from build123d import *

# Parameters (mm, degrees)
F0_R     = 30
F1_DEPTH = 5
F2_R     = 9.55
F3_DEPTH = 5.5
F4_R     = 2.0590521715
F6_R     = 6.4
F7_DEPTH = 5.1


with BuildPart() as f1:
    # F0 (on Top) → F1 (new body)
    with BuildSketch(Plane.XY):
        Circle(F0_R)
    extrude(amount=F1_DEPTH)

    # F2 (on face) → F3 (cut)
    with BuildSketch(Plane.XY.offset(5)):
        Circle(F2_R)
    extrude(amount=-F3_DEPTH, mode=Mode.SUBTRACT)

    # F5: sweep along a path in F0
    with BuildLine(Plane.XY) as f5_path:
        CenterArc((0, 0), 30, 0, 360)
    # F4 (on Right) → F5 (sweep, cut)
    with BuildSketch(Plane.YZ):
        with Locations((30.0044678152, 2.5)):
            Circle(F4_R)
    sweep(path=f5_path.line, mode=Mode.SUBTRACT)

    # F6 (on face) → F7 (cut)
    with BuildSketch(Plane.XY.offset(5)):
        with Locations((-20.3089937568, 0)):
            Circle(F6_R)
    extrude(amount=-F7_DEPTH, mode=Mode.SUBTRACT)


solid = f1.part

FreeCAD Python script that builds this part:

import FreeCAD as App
import Part
import Sketcher

doc = App.newDocument("Part")
body = doc.addObject("PartDesign::Body", "Body")

sketch1 = doc.addObject("Sketcher::SketchObject", "Sketch")
body.addObject(sketch1)
sketch1.AttachmentSupport = (doc.XY_Plane, [""])
sketch1.MapMode = "FlatFace"
sketch1.addGeometry(Part.Circle(App.Vector(0, 0, 0), App.Vector(0, 0, 1), 30), False)
sketch1.addConstraint(Sketcher.Constraint("Coincident", 0, 3, -1, 1))
sketch1.addConstraint(Sketcher.Constraint("Diameter", 0, 60.0))
pad1 = doc.addObject("PartDesign::Pad", "Pad")
body.addObject(pad1)
pad1.Profile = sketch1
pad1.Length = 5

sketch2 = doc.addObject("Sketcher::SketchObject", "Sketch001")
body.addObject(sketch2)
sketch2.AttachmentSupport = (doc.XY_Plane, [""])
sketch2.MapMode = "FlatFace"
sketch2.AttachmentOffset = App.Placement(App.Vector(0, 0, 5), App.Rotation())
sketch2.addGeometry(Part.Circle(App.Vector(0, 0, 0), App.Vector(0, 0, 1), 10), False)
sketch2.addConstraint(Sketcher.Constraint("Coincident", 0, 3, -1, 1))
sketch2.addConstraint(Sketcher.Constraint("Diameter", 0, 19.1))
pocket1 = doc.addObject("PartDesign::Pocket", "Pocket")
body.addObject(pocket1)
pocket1.Profile = sketch2
pocket1.Length = 5.5

sketch3 = doc.addObject("Sketcher::SketchObject", "Sketch002")
body.addObject(sketch3)
sketch3.AttachmentSupport = (doc.YZ_Plane, [""])
sketch3.MapMode = "FlatFace"
sketch3.addGeometry(Part.Circle(App.Vector(30, 2.5, 0), App.Vector(0, 0, 1), 2.1), False)
sketch3.addConstraint(Sketcher.Constraint("DistanceY", -1, 1, 0, 3, 2.5))
sketch3.addConstraint(Sketcher.Constraint("Diameter", 0, 4.118104))
sketch3.addConstraint(Sketcher.Constraint("DistanceX", -1, 1, 0, 3, 30.004468))

sketch4 = doc.addObject("Sketcher::SketchObject", "Sketch003")
body.addObject(sketch4)
sketch4.AttachmentSupport = (doc.XY_Plane, [""])
sketch4.MapMode = "FlatFace"
sketch4.addGeometry(Part.Circle(App.Vector(0, 0, 0), App.Vector(0, 0, 1), 30), False)
sketch4.addConstraint(Sketcher.Constraint("Coincident", 0, 3, -1, 1))
sketch4.addConstraint(Sketcher.Constraint("Diameter", 0, 60.0))
doc.recompute()

subtractivepipe = doc.addObject("PartDesign::SubtractivePipe", "SubtractivePipe")
body.addObject(subtractivepipe)
subtractivepipe.Profile = sketch3
subtractivepipe.Spine = (sketch4, ["Edge1"])

sketch5 = doc.addObject("Sketcher::SketchObject", "Sketch004")
body.addObject(sketch5)
sketch5.AttachmentSupport = (doc.XY_Plane, [""])
sketch5.MapMode = "FlatFace"
sketch5.AttachmentOffset = App.Placement(App.Vector(0, 0, 5), App.Rotation())
sketch5.addGeometry(Part.Circle(App.Vector(-20, 0, 0), App.Vector(0, 0, 1), 6), False)
sketch5.addConstraint(Sketcher.Constraint("PointOnObject", 0, 3, -1))
sketch5.addConstraint(Sketcher.Constraint("Diameter", 0, 12.8))
sketch5.addConstraint(Sketcher.Constraint("DistanceX", 0, 3, -1, 1, 20.308994))
pocket2 = doc.addObject("PartDesign::Pocket", "Pocket001")
body.addObject(pocket2)
pocket2.Profile = sketch5
pocket2.Length = 5.1

doc.recompute()
